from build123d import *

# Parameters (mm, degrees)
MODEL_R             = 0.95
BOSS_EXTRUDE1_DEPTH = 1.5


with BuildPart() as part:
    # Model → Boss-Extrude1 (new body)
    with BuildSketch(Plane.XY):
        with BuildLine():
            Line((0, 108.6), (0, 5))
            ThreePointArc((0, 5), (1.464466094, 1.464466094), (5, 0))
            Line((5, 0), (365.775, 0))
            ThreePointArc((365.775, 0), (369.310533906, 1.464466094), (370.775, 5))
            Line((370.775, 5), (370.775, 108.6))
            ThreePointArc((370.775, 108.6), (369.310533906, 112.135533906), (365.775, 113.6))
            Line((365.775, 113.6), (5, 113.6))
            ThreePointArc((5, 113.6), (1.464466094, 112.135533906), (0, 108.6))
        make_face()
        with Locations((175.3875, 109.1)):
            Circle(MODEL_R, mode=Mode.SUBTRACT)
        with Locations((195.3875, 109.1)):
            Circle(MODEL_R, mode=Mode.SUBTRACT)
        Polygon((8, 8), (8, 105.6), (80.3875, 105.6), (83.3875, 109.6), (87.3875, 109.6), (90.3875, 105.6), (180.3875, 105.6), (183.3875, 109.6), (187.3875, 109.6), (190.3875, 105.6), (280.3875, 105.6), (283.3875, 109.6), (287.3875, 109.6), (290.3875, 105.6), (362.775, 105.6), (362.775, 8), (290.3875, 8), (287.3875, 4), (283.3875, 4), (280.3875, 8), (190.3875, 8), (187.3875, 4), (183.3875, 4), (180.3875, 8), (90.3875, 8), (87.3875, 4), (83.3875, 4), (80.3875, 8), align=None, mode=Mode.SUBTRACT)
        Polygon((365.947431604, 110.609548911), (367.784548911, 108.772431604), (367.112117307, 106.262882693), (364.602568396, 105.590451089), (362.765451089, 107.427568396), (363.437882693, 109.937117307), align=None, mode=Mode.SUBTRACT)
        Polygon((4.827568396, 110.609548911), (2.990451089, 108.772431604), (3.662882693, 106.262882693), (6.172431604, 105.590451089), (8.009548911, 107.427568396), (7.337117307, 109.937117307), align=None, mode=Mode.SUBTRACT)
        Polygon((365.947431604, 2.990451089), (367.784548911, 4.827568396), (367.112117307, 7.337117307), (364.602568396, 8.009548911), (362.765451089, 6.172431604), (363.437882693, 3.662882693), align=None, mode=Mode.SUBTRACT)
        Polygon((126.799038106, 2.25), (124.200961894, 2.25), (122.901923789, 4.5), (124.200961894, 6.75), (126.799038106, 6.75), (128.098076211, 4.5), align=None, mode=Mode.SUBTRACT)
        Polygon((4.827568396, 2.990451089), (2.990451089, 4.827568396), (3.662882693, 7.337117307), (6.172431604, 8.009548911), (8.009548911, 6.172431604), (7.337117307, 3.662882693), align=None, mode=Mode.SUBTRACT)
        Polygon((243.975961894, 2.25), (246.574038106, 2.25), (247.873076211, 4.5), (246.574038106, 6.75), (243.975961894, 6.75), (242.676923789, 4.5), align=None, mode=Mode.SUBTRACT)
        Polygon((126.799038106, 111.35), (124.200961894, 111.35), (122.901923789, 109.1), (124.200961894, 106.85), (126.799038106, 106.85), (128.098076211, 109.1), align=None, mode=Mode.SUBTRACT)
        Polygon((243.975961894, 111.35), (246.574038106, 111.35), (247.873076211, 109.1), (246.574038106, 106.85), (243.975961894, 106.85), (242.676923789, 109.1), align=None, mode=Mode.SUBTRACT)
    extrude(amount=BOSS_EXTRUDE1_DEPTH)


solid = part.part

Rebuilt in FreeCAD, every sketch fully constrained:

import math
import FreeCAD as App
import Part
import Sketcher

V = App.Vector
Q = App.Units.Quantity

doc = App.newDocument("Part")
params = doc.addObject("Spreadsheet::Sheet", "Params")
for row, (alias, value) in enumerate([
    ("sketch1_radius", "5 mm"),
    ("sketch1_diameter", "1.9 mm"),
    ("sketch1_width", "4 mm"),
    ("sketch1_width2", "90 mm"),
    ("sketch1_length", "5 mm"),
    ("pad1_length", "1.5 mm"),
], start=1):
    params.set(f"A{row}", alias)
    params.set(f"B{row}", "=" + value)
    params.setAlias(f"B{row}", alias)

body = doc.addObject("PartDesign::Body", "Body")

# Sketch on XY plane
sketch1 = doc.addObject("Sketcher::SketchObject", "Sketch")
body.addObject(sketch1)
sketch1.AttachmentSupport = (doc.XY_Plane, [""])
sketch1.MapMode = "FlatFace"
sketch1.addGeometry(Part.LineSegment(V(0, 108.6, 0), V(0, 5, 0)), False)
sketch1.addGeometry(Part.ArcOfCircle(Part.Circle(V(5, 5, 0), V(0, 0, 1), 5), math.radians(180), math.radians(270)), False)
sketch1.addGeometry(Part.LineSegment(V(5, 0, 0), V(365.8, 0, 0)), False)
sketch1.addGeometry(Part.ArcOfCircle(Part.Circle(V(365.8, 5, 0), V(0, 0, 1), 5), math.radians(-90), math.radians(0)), False)
sketch1.addGeometry(Part.LineSegment(V(370.8, 5, 0), V(370.8, 108.6, 0)), False)
sketch1.addGeometry(Part.ArcOfCircle(Part.Circle(V(365.8, 108.6, 0), V(0, 0, 1), 5), math.radians(0), math.radians(90)), False)
sketch1.addGeometry(Part.LineSegment(V(365.8, 113.6, 0), V(5, 113.6, 0)), False)
sketch1.addGeometry(Part.ArcOfCircle(Part.Circle(V(5, 108.6, 0), V(0, 0, 1), 5), math.radians(90), math.radians(180)), False)
sketch1.addGeometry(Part.LineSegment(V(7.3, 3.7, 0), V(4.8, 3, 0)), False)
sketch1.addGeometry(Part.LineSegment(V(4.8, 3, 0), V(3, 4.8, 0)), False)
sketch1.addGeometry(Part.LineSegment(V(3, 4.8, 0), V(3.7, 7.3, 0)), False)
sketch1.addGeometry(Part.LineSegment(V(3.7, 7.3, 0), V(6.2, 8, 0)), False)
sketch1.addGeometry(Part.LineSegment(V(6.2, 8, 0), V(8, 6.2, 0)), False)
sketch1.addGeometry(Part.LineSegment(V(8, 6.2, 0), V(7.3, 3.7, 0)), False)
sketch1.addGeometry(Part.LineSegment(V(128.1, 4.5, 0), V(126.8, 2.2, 0)), False)
sketch1.addGeometry(Part.LineSegment(V(126.8, 2.2, 0), V(124.2, 2.2, 0)), False)
sketch1.addGeometry(Part.LineSegment(V(124.2, 2.2, 0), V(122.9, 4.5, 0)), False)
sketch1.addGeometry(Part.LineSegment(V(122.9, 4.5, 0), V(124.2, 6.8, 0)), False)
sketch1.addGeometry(Part.LineSegment(V(124.2, 6.8, 0), V(126.8, 6.8, 0)), False)
sketch1.addGeometry(Part.LineSegment(V(126.8, 6.8, 0), V(128.1, 4.5, 0)), False)
sketch1.addGeometry(Part.LineSegment(V(80.4, 8, 0), V(8, 8, 0)), False)
sketch1.addGeometry(Part.LineSegment(V(8, 8, 0), V(8, 105.6, 0)), False)
sketch1.addGeometry(Part.LineSegment(V(8, 105.6, 0), V(80.4, 105.6, 0)), False)
sketch1.addGeometry(Part.LineSegment(V(80.4, 105.6, 0), V(83.4, 109.6, 0)), False)
sketch1.addGeometry(Part.LineSegment(V(83.4, 109.6, 0), V(87.4, 109.6, 0)), False)
sketch1.addGeometry(Part.LineSegment(V(87.4, 109.6, 0), V(90.4, 105.6, 0)), False)
sketch1.addGeometry(Part.LineSegment(V(90.4, 105.6, 0), V(180.4, 105.6, 0)), False)
sketch1.addGeometry(Part.LineSegment(V(180.4, 105.6, 0), V(183.4, 109.6, 0)), False)
sketch1.addGeometry(Part.LineSegment(V(183.4, 109.6, 0), V(187.4, 109.6, 0)), False)
sketch1.addGeometry(Part.LineSegment(V(187.4, 109.6, 0), V(190.4, 105.6, 0)), False)
sketch1.addGeometry(Part.LineSegment(V(190.4, 105.6, 0), V(280.4, 105.6, 0)), False)
sketch1.addGeometry(Part.LineSegment(V(280.4, 105.6, 0), V(283.4, 109.6, 0)), False)
sketch1.addGeometry(Part.LineSegment(V(283.4, 109.6, 0), V(287.4, 109.6, 0)), False)
sketch1.addGeometry(Part.LineSegment(V(287.4, 109.6, 0), V(290.4, 105.6, 0)), False)
sketch1.addGeometry(Part.LineSegment(V(290.4, 105.6, 0), V(362.8, 105.6, 0)), False)
sketch1.addGeometry(Part.LineSegment(V(362.8, 105.6, 0), V(362.8, 8, 0)), False)
sketch1.addGeometry(Part.LineSegment(V(362.8, 8, 0), V(290.4, 8, 0)), False)
sketch1.addGeometry(Part.LineSegment(V(290.4, 8, 0), V(287.4, 4, 0)), False)
sketch1.addGeometry(Part.LineSegment(V(287.4, 4, 0), V(283.4, 4, 0)), False)
sketch1.addGeometry(Part.LineSegment(V(283.4, 4, 0), V(280.4, 8, 0)), False)
sketch1.addGeometry(Part.LineSegment(V(280.4, 8, 0), V(190.4, 8, 0)), False)
sketch1.addGeometry(Part.LineSegment(V(190.4, 8, 0), V(187.4, 4, 0)), False)
sketch1.addGeometry(Part.LineSegment(V(187.4, 4, 0), V(183.4, 4, 0)), False)
sketch1.addGeometry(Part.LineSegment(V(183.4, 4, 0), V(180.4, 8, 0)), False)
sketch1.addGeometry(Part.LineSegment(V(180.4, 8, 0), V(90.4, 8, 0)), False)
sketch1.addGeometry(Part.LineSegment(V(90.4, 8, 0), V(87.4, 4, 0)), False)
sketch1.addGeometry(Part.LineSegment(V(87.4, 4, 0), V(83.4, 4, 0)), False)
sketch1.addGeometry(Part.LineSegment(V(83.4, 4, 0), V(80.4, 8, 0)), False)
sketch1.addGeometry(Part.LineSegment(V(246.6, 2.2, 0), V(244, 2.2, 0)), False)
sketch1.addGeometry(Part.LineSegment(V(244, 2.2, 0), V(242.7, 4.5, 0)), False)
sketch1.addGeometry(Part.LineSegment(V(242.7, 4.5, 0), V(244, 6.8, 0)), False)
sketch1.addGeometry(Part.LineSegment(V(244, 6.8, 0), V(246.6, 6.8, 0)), False)
sketch1.addGeometry(Part.LineSegment(V(246.6, 6.8, 0), V(247.9, 4.5, 0)), False)
sketch1.addGeometry(Part.LineSegment(V(247.9, 4.5, 0), V(246.6, 2.2, 0)), False)
sketch1.addGeometry(Part.LineSegment(V(367.8, 4.8, 0), V(365.9, 3, 0)), False)
sketch1.addGeometry(Part.LineSegment(V(365.9, 3, 0), V(363.4, 3.7, 0)), False)
sketch1.addGeometry(Part.LineSegment(V(363.4, 3.7, 0), V(362.8, 6.2, 0)), False)
sketch1.addGeometry(Part.LineSegment(V(362.8, 6.2, 0), V(364.6, 8, 0)), False)
sketch1.addGeometry(Part.LineSegment(V(364.6, 8, 0), V(367.1, 7.3, 0)), False)
sketch1.addGeometry(Part.LineSegment(V(367.1, 7.3, 0), V(367.8, 4.8, 0)), False)
sketch1.addGeometry(Part.LineSegment(V(3, 108.8, 0), V(4.8, 110.6, 0)), False)
sketch1.addGeometry(Part.LineSegment(V(4.8, 110.6, 0), V(7.3, 109.9, 0)), False)
sketch1.addGeometry(Part.LineSegment(V(7.3, 109.9, 0), V(8, 107.4, 0)), False)
sketch1.addGeometry(Part.LineSegment(V(8, 107.4, 0), V(6.2, 105.6, 0)), False)
sketch1.addGeometry(Part.LineSegment(V(6.2, 105.6, 0), V(3.7, 106.3, 0)), False)
sketch1.addGeometry(Part.LineSegment(V(3.7, 106.3, 0), V(3, 108.8, 0)), False)
sketch1.addGeometry(Part.LineSegment(V(124.2, 111.3, 0), V(126.8, 111.3, 0)), False)
sketch1.addGeometry(Part.LineSegment(V(126.8, 111.3, 0), V(128.1, 109.1, 0)), False)
sketch1.addGeometry(Part.LineSegment(V(128.1, 109.1, 0), V(126.8, 106.8, 0)), False)
sketch1.addGeometry(Part.LineSegment(V(126.8, 106.8, 0), V(124.2, 106.8, 0)), False)
sketch1.addGeometry(Part.LineSegment(V(124.2, 106.8, 0), V(122.9, 109.1, 0)), False)
sketch1.addGeometry(Part.LineSegment(V(122.9, 109.1, 0), V(124.2, 111.3, 0)), False)
sketch1.addGeometry(Part.Circle(V(175.4, 109.1, 0), V(0, 0, 1), 0.9), False)
sketch1.addGeometry(Part.Circle(V(195.4, 109.1, 0), V(0, 0, 1), 0.9), False)
sketch1.addGeometry(Part.LineSegment(V(242.7, 109.1, 0), V(244, 111.3, 0)), False)
sketch1.addGeometry(Part.LineSegment(V(244, 111.3, 0), V(246.6, 111.3, 0)), False)
sketch1.addGeometry(Part.LineSegment(V(246.6, 111.3, 0), V(247.9, 109.1, 0)), False)
sketch1.addGeometry(Part.LineSegment(V(247.9, 109.1, 0), V(246.6, 106.8, 0)), False)
sketch1.addGeometry(Part.LineSegment(V(246.6, 106.8, 0), V(244, 106.8, 0)), False)
sketch1.addGeometry(Part.LineSegment(V(244, 106.8, 0), V(242.7, 109.1, 0)), False)
sketch1.addGeometry(Part.LineSegment(V(363.4, 109.9, 0), V(365.9, 110.6, 0)), False)
sketch1.addGeometry(Part.LineSegment(V(365.9, 110.6, 0), V(367.8, 108.8, 0)), False)
sketch1.addGeometry(Part.LineSegment(V(367.8, 108.8, 0), V(367.1, 106.3, 0)), False)
sketch1.addGeometry(Part.LineSegment(V(367.1, 106.3, 0), V(364.6, 105.6, 0)), False)
sketch1.addGeometry(Part.LineSegment(V(364.6, 105.6, 0), V(362.8, 107.4, 0)), False)
sketch1.addGeometry(Part.LineSegment(V(362.8, 107.4, 0), V(363.4, 109.9, 0)), False)
sketch1.addConstraint(Sketcher.Constraint("Tangent", 0, 2, 1, 1))
sketch1.addConstraint(Sketcher.Constraint("Tangent", 1, 2, 2, 1))
sketch1.addConstraint(Sketcher.Constraint("Tangent", 2, 2, 3, 1))
sketch1.addConstraint(Sketcher.Constraint("Tangent", 3, 2, 4, 1))
sketch1.addConstraint(Sketcher.Constraint("Tangent", 4, 2, 5, 1))
sketch1.addConstraint(Sketcher.Constraint("Tangent", 5, 2, 6, 1))
sketch1.addConstraint(Sketcher.Constraint("Tangent", 6, 2, 7, 1))
sketch1.addConstraint(Sketcher.Constraint("Tangent", 7, 2, 0, 1))
sketch1.addConstraint(Sketcher.Constraint("Coincident", 8, 2, 9, 1))
sketch1.addConstraint(Sketcher.Constraint("Coincident", 9, 2, 10, 1))
sketch1.addConstraint(Sketcher.Constraint("Coincident", 10, 2, 11, 1))
sketch1.addConstraint(Sketcher.Constraint("Coincident", 11, 2, 12, 1))
sketch1.addConstraint(Sketcher.Constraint("Coincident", 12, 2, 13, 1))
sketch1.addConstraint(Sketcher.Constraint("Coincident", 13, 2, 8, 1))
sketch1.addConstraint(Sketcher.Constraint("Coincident", 14, 2, 15, 1))
sketch1.addConstraint(Sketcher.Constraint("Coincident", 15, 2, 16, 1))
sketch1.addConstraint(Sketcher.Constraint("Coincident", 16, 2, 17, 1))
sketch1.addConstraint(Sketcher.Constraint("Coincident", 17, 2, 18, 1))
sketch1.addConstraint(Sketcher.Constraint("Coincident", 18, 2, 19, 1))
sketch1.addConstraint(Sketcher.Constraint("Coincident", 19, 2, 14, 1))
sketch1.addConstraint(Sketcher.Constraint("Coincident", 20, 2, 21, 1))
sketch1.addConstraint(Sketcher.Constraint("Coincident", 21, 2, 22, 1))
sketch1.addConstraint(Sketcher.Constraint("Coincident", 22, 2, 23, 1))
sketch1.addConstraint(Sketcher.Constraint("Coincident", 23, 2, 24, 1))
sketch1.addConstraint(Sketcher.Constraint("Coincident", 24, 2, 25, 1))
sketch1.addConstraint(Sketcher.Constraint("Coincident", 25, 2, 26, 1))
sketch1.addConstraint(Sketcher.Constraint("Coincident", 26, 2, 27, 1))
sketch1.addConstraint(Sketcher.Constraint("Coincident", 27, 2, 28, 1))
sketch1.addConstraint(Sketcher.Constraint("Coincident", 28, 2, 29, 1))
sketch1.addConstraint(Sketcher.Constraint("Coincident", 29, 2, 30, 1))
sketch1.addConstraint(Sketcher.Constraint("Coincident", 30, 2, 31, 1))
sketch1.addConstraint(Sketcher.Constraint("Coincident", 31, 2, 32, 1))
sketch1.addConstraint(Sketcher.Constraint("Coincident", 32, 2, 33, 1))
sketch1.addConstraint(Sketcher.Constraint("Coincident", 33, 2, 34, 1))
sketch1.addConstraint(Sketcher.Constraint("Coincident", 34, 2, 35, 1))
sketch1.addConstraint(Sketcher.Constraint("Coincident", 35, 2, 36, 1))
sketch1.addConstraint(Sketcher.Constraint("Coincident", 36, 2, 37, 1))
sketch1.addConstraint(Sketcher.Constraint("Coincident", 37, 2, 38, 1))
sketch1.addConstraint(Sketcher.Constraint("Coincident", 38, 2, 39, 1))
sketch1.addConstraint(Sketcher.Constraint("Coincident", 39, 2, 40, 1))
sketch1.addConstraint(Sketcher.Constraint("Coincident", 40, 2, 41, 1))
sketch1.addConstraint(Sketcher.Constraint("Coincident", 41, 2, 42, 1))
sketch1.addConstraint(Sketcher.Constraint("Coincident", 42, 2, 43, 1))
sketch1.addConstraint(Sketcher.Constraint("Coincident", 43, 2, 44, 1))
sketch1.addConstraint(Sketcher.Constraint("Coincident", 44, 2, 45, 1))
sketch1.addConstraint(Sketcher.Constraint("Coincident", 45, 2, 46, 1))
sketch1.addConstraint(Sketcher.Constraint("Coincident", 46, 2, 47, 1))
sketch1.addConstraint(Sketcher.Constraint("Coincident", 47, 2, 20, 1))
sketch1.addConstraint(Sketcher.Constraint("Coincident", 48, 2, 49, 1))
sketch1.addConstraint(Sketcher.Constraint("Coincident", 49, 2, 50, 1))
sketch1.addConstraint(Sketcher.Constraint("Coincident", 50, 2, 51, 1))
sketch1.addConstraint(Sketcher.Constraint("Coincident", 51, 2, 52, 1))
sketch1.addConstraint(Sketcher.Constraint("Coincident", 52, 2, 53, 1))
sketch1.addConstraint(Sketcher.Constraint("Coincident", 53, 2, 48, 1))
sketch1.addConstraint(Sketcher.Constraint("Coincident", 54, 2, 55, 1))
sketch1.addConstraint(Sketcher.Constraint("Coincident", 55, 2, 56, 1))
sketch1.addConstraint(Sketcher.Constraint("Coincident", 56, 2, 57, 1))
sketch1.addConstraint(Sketcher.Constraint("Coincident", 57, 2, 58, 1))
sketch1.addConstraint(Sketcher.Constraint("Coincident", 58, 2, 59, 1))
sketch1.addConstraint(Sketcher.Constraint("Coincident", 59, 2, 54, 1))
sketch1.addConstraint(Sketcher.Constraint("Coincident", 60, 2, 61, 1))
sketch1.addConstraint(Sketcher.Constraint("Coincident", 61, 2, 62, 1))
sketch1.addConstraint(Sketcher.Constraint("Coincident", 62, 2, 63, 1))
sketch1.addConstraint(Sketcher.Constraint("Coincident", 63, 2, 64, 1))
sketch1.addConstraint(Sketcher.Constraint("Coincident", 64, 2, 65, 1))
sketch1.addConstraint(Sketcher.Constraint("Coincident", 65, 2, 60, 1))
sketch1.addConstraint(Sketcher.Constraint("Coincident", 66, 2, 67, 1))
sketch1.addConstraint(Sketcher.Constraint("Coincident", 67, 2, 68, 1))
sketch1.addConstraint(Sketcher.Constraint("Coincident", 68, 2, 69, 1))
sketch1.addConstraint(Sketcher.Constraint("Coincident", 69, 2, 70, 1))
sketch1.addConstraint(Sketcher.Constraint("Coincident", 70, 2, 71, 1))
sketch1.addConstraint(Sketcher.Constraint("Coincident", 71, 2, 66, 1))
sketch1.addConstraint(Sketcher.Constraint("Coincident", 74, 2, 75, 1))
sketch1.addConstraint(Sketcher.Constraint("Coincident", 75, 2, 76, 1))
sketch1.addConstraint(Sketcher.Constraint("Coincident", 76, 2, 77, 1))
sketch1.addConstraint(Sketcher.Constraint("Coincident", 77, 2, 78, 1))
sketch1.addConstraint(Sketcher.Constraint("Coincident", 78, 2, 79, 1))
sketch1.addConstraint(Sketcher.Constraint("Coincident", 79, 2, 74, 1))
sketch1.addConstraint(Sketcher.Constraint("Coincident", 80, 2, 81, 1))
sketch1.addConstraint(Sketcher.Constraint("Coincident", 81, 2, 82, 1))
sketch1.addConstraint(Sketcher.Constraint("Coincident", 82, 2, 83, 1))
sketch1.addConstraint(Sketcher.Constraint("Coincident", 83, 2, 84, 1))
sketch1.addConstraint(Sketcher.Constraint("Coincident", 84, 2, 85, 1))
sketch1.addConstraint(Sketcher.Constraint("Coincident", 85, 2, 80, 1))
sketch1.addConstraint(Sketcher.Constraint("Vertical", 0))
sketch1.addConstraint(Sketcher.Constraint("Horizontal", 2))
sketch1.addConstraint(Sketcher.Constraint("Vertical", 4))
sketch1.addConstraint(Sketcher.Constraint("Horizontal", 6))
sketch1.addConstraint(Sketcher.Constraint("Horizontal", 15))
sketch1.addConstraint(Sketcher.Constraint("Horizontal", 18))
sketch1.addConstraint(Sketcher.Constraint("Horizontal", 20))
sketch1.addConstraint(Sketcher.Constraint("Vertical", 21))
sketch1.addConstraint(Sketcher.Constraint("Horizontal", 22))
sketch1.addConstraint(Sketcher.Constraint("Horizontal", 24))
sketch1.addConstraint(Sketcher.Constraint("Horizontal", 26))
sketch1.addConstraint(Sketcher.Constraint("Horizontal", 28))
sketch1.addConstraint(Sketcher.Constraint("Horizontal", 30))
sketch1.addConstraint(Sketcher.Constraint("Horizontal", 32))
sketch1.addConstraint(Sketcher.Constraint("Horizontal", 34))
sketch1.addConstraint(Sketcher.Constraint("Vertical", 35))
sketch1.addConstraint(Sketcher.Constraint("Horizontal", 36))
sketch1.addConstraint(Sketcher.Constraint("Horizontal", 38))
sketch1.addConstraint(Sketcher.Constraint("Horizontal", 40))
sketch1.addConstraint(Sketcher.Constraint("Horizontal", 42))
sketch1.addConstraint(Sketcher.Constraint("Horizontal", 44))
sketch1.addConstraint(Sketcher.Constraint("Horizontal", 46))
sketch1.addConstraint(Sketcher.Constraint("Horizontal", 48))
sketch1.addConstraint(Sketcher.Constraint("Horizontal", 51))
sketch1.addConstraint(Sketcher.Constraint("Horizontal", 66))
sketch1.addConstraint(Sketcher.Constraint("Horizontal", 69))
sketch1.addConstraint(Sketcher.Constraint("Horizontal", 75))
sketch1.addConstraint(Sketcher.Constraint("Horizontal", 78))
sketch1.addConstraint(Sketcher.Constraint("Equal", 1, 3))
sketch1.addConstraint(Sketcher.Constraint("Equal", 3, 5))
sketch1.addConstraint(Sketcher.Constraint("Equal", 5, 7))
sketch1.addConstraint(Sketcher.Constraint("Equal", 72, 73))
sketch1.addConstraint(Sketcher.Constraint("PointOnObject", 0, 2, -2))
sketch1.addConstraint(Sketcher.Constraint("PointOnObject", 1, 2, -1))
sketch1.addConstraint(Sketcher.Constraint("Parallel", 8, 11))
sketch1.addConstraint(Sketcher.Constraint("Parallel", 9, 12))
sketch1.addConstraint(Sketcher.Constraint("Parallel", 10, 13))
sketch1.addConstraint(Sketcher.Constraint("Parallel", 14, 17))
sketch1.addConstraint(Sketcher.Constraint("Parallel", 16, 19))
sketch1.addConstraint(Sketcher.Constraint("Parallel", 23, 27))
sketch1.addConstraint(Sketcher.Constraint("Parallel", 25, 29))
sketch1.addConstraint(Sketcher.Constraint("Parallel", 27, 31))
sketch1.addConstraint(Sketcher.Constraint("Parallel", 29, 33))
sketch1.addConstraint(Sketcher.Constraint("Parallel", 31, 37))
sketch1.addConstraint(Sketcher.Constraint("Parallel", 33, 39))
sketch1.addConstraint(Sketcher.Constraint("Parallel", 37, 41))
sketch1.addConstraint(Sketcher.Constraint("Parallel", 39, 43))
sketch1.addConstraint(Sketcher.Constraint("Parallel", 41, 45))
sketch1.addConstraint(Sketcher.Constraint("Parallel", 43, 47))
sketch1.addConstraint(Sketcher.Constraint("Parallel", 19, 49))
sketch1.addConstraint(Sketcher.Constraint("Parallel", 17, 50))
sketch1.addConstraint(Sketcher.Constraint("Parallel", 49, 52))
sketch1.addConstraint(Sketcher.Constraint("Parallel", 50, 53))
sketch1.addConstraint(Sketcher.Constraint("Perpendicular", 12, 54))
sketch1.addConstraint(Sketcher.Constraint("Perpendicular", 13, 55))
sketch1.addConstraint(Sketcher.Constraint("Perpendicular", 11, 56))
sketch1.addConstraint(Sketcher.Constraint("Parallel", 54, 57))
sketch1.addConstraint(Sketcher.Constraint("Parallel", 55, 58))
sketch1.addConstraint(Sketcher.Constraint("Parallel", 56, 59))
sketch1.addConstraint(Sketcher.Constraint("Parallel", 57, 60))
sketch1.addConstraint(Sketcher.Constraint("Parallel", 58, 61))
sketch1.addConstraint(Sketcher.Constraint("Parallel", 59, 62))
sketch1.addConstraint(Sketcher.Constraint("Parallel", 60, 63))
sketch1.addConstraint(Sketcher.Constraint("Parallel", 61, 64))
sketch1.addConstraint(Sketcher.Constraint("Parallel", 62, 65))
sketch1.addConstraint(Sketcher.Constraint("Parallel", 52, 67))
sketch1.addConstraint(Sketcher.Constraint("Parallel", 53, 68))
sketch1.addConstraint(Sketcher.Constraint("Parallel", 67, 70))
sketch1.addConstraint(Sketcher.Constraint("Parallel", 68, 71))
sketch1.addConstraint(Sketcher.Constraint("Parallel", 71, 74))
sketch1.addConstraint(Sketcher.Constraint("Parallel", 70, 76))
sketch1.addConstraint(Sketcher.Constraint("Parallel", 74, 77))
sketch1.addConstraint(Sketcher.Constraint("Parallel", 76, 79))
sketch1.addConstraint(Sketcher.Constraint("Perpendicular", 65, 80))
sketch1.addConstraint(Sketcher.Constraint("Perpendicular", 63, 81))
sketch1.addConstraint(Sketcher.Constraint("Perpendicular", 64, 82))
sketch1.addConstraint(Sketcher.Constraint("Parallel", 80, 83))
sketch1.addConstraint(Sketcher.Constraint("Parallel", 81, 84))
sketch1.addConstraint(Sketcher.Constraint("Parallel", 82, 85))
sketch1.addConstraint(Sketcher.Constraint("Horizontal", 72, 3, 73, 3))
sketch1.addConstraint(Sketcher.Constraint("Horizontal", 16, 2, 19, 2))
sketch1.addConstraint(Sketcher.Constraint("Horizontal", 22, 2, 25, 2))
sketch1.addConstraint(Sketcher.Constraint("Horizontal", 24, 2, 27, 2))
sketch1.addConstraint(Sketcher.Constraint("Horizontal", 26, 2, 29, 2))
sketch1.addConstraint(Sketcher.Constraint("Horizontal", 28, 2, 31, 2))
sketch1.addConstraint(Sketcher.Constraint("Horizontal", 30, 2, 33, 2))
sketch1.addConstraint(Sketcher.Constraint("Horizontal", 20, 2, 35, 2))
sketch1.addConstraint(Sketcher.Constraint("Horizontal", 36, 2, 39, 2))
sketch1.addConstraint(Sketcher.Constraint("Horizontal", 38, 2, 41, 2))
sketch1.addConstraint(Sketcher.Constraint("Horizontal", 40, 2, 43, 2))
sketch1.addConstraint(Sketcher.Constraint("Horizontal", 42, 2, 45, 2))
sketch1.addConstraint(Sketcher.Constraint("Horizontal", 15, 2, 48, 2))
sketch1.addConstraint(Sketcher.Constraint("Horizontal", 19, 2, 49, 2))
sketch1.addConstraint(Sketcher.Constraint("Horizontal", 18, 2, 50, 2))
sketch1.addConstraint(Sketcher.Constraint("Horizontal", 49, 2, 52, 2))
sketch1.addConstraint(Sketcher.Constraint("Horizontal", 8, 2, 54, 2))
sketch1.addConstraint(Sketcher.Constraint("Horizontal", 13, 2, 55, 2))
sketch1.addConstraint(Sketcher.Constraint("Horizontal", 12, 2, 56, 2))
sketch1.addConstraint(Sketcher.Constraint("Horizontal", 11, 2, 57, 2))
sketch1.addConstraint(Sketcher.Constraint("Horizontal", 10, 2, 58, 2))
sketch1.addConstraint(Sketcher.Constraint("Horizontal", 73, 3, 67, 2))
sketch1.addConstraint(Sketcher.Constraint("Horizontal", 67, 2, 70, 2))
sketch1.addConstraint(Sketcher.Constraint("Horizontal", 71, 2, 74, 2))
sketch1.addConstraint(Sketcher.Constraint("Horizontal", 70, 2, 76, 2))
sketch1.addConstraint(Sketcher.Constraint("Horizontal", 69, 2, 77, 2))
sketch1.addConstraint(Sketcher.Constraint("Horizontal", 76, 2, 79, 2))
sketch1.addConstraint(Sketcher.Constraint("Horizontal", 60, 2, 80, 2))
sketch1.addConstraint(Sketcher.Constraint("Horizontal", 65, 2, 81, 2))
sketch1.addConstraint(Sketcher.Constraint("Horizontal", 64, 2, 82, 2))
sketch1.addConstraint(Sketcher.Constraint("Horizontal", 63, 2, 83, 2))
sketch1.addConstraint(Sketcher.Constraint("Horizontal", 62, 2, 84, 2))
sketch1.addConstraint(Sketcher.Constraint("Vertical", 15, 2, 17, 2))
sketch1.addConstraint(Sketcher.Constraint("Vertical", 14, 2, 18, 2))
sketch1.addConstraint(Sketcher.Constraint("Vertical", 33, 2, 36, 2))
sketch1.addConstraint(Sketcher.Constraint("Vertical", 32, 2, 37, 2))
sketch1.addConstraint(Sketcher.Constraint("Vertical", 31, 2, 38, 2))
sketch1.addConstraint(Sketcher.Constraint("Vertical", 30, 2, 39, 2))
sketch1.addConstraint(Sketcher.Constraint("Vertical", 29, 2, 40, 2))
sketch1.addConstraint(Sketcher.Constraint("Vertical", 27, 2, 42, 2))
sketch1.addConstraint(Sketcher.Constraint("Vertical", 25, 2, 44, 2))
sketch1.addConstraint(Sketcher.Constraint("Vertical", 23, 2, 46, 2))
sketch1.addConstraint(Sketcher.Constraint("Vertical", 8, 2, 60, 2))
sketch1.addConstraint(Sketcher.Constraint("Vertical", 13, 2, 61, 2))
sketch1.addConstraint(Sketcher.Constraint("Vertical", 12, 2, 62, 2))
sketch1.addConstraint(Sketcher.Constraint("Vertical", 11, 2, 63, 2))
sketch1.addConstraint(Sketcher.Constraint("Vertical", 10, 2, 64, 2))
sketch1.addConstraint(Sketcher.Constraint("Vertical", 18, 2, 66, 2))
sketch1.addConstraint(Sketcher.Constraint("Vertical", 19, 2, 67, 2))
sketch1.addConstraint(Sketcher.Constraint("Vertical", 66, 2, 68, 2))
sketch1.addConstraint(Sketcher.Constraint("Vertical", 17, 2, 69, 2))
sketch1.addConstraint(Sketcher.Constraint("Vertical", 50, 2, 74, 2))
sketch1.addConstraint(Sketcher.Constraint("Vertical", 53, 2, 75, 2))
sketch1.addConstraint(Sketcher.Constraint("Vertical", 54, 2, 80, 2))
sketch1.addConstraint(Sketcher.Constraint("Vertical", 59, 2, 81, 2))
sketch1.addConstraint(Sketcher.Constraint("Vertical", 58, 2, 82, 2))
sketch1.addConstraint(Sketcher.Constraint("Equal", 24, 28))
sketch1.addConstraint(Sketcher.Constraint("Equal", 26, 30))
sketch1.addConstraint(Sketcher.Constraint("Equal", 28, 32))
sketch1.addConstraint(Sketcher.Constraint("Equal", 22, 34))
sketch1.addConstraint(Sketcher.Constraint("Equal", 18, 48))
sketch1.addConstraint(Sketcher.Constraint("Equal", 8, 9))
sketch1.addConstraint(Sketcher.Constraint("Equal", 9, 10))
sketch1.addConstraint(Sketcher.Constraint("Equal", 10, 11))
sketch1.addConstraint(Sketcher.Constraint("Equal", 13, 14))
sketch1.addConstraint(Sketcher.Constraint("Radius", 1, Q("5 mm")))
sketch1.addConstraint(Sketcher.Constraint("Diameter", 72, Q("1.9 mm")))
sketch1.addConstraint(Sketcher.Constraint("DistanceX", 24, 1, 24, 2, Q("4 mm")))
sketch1.addConstraint(Sketcher.Constraint("DistanceX", 26, 1, 26, 2, Q("90 mm")))
sketch1.addConstraint(Sketcher.Constraint("Angle", 8, Q("-165 deg")))
sketch1.addConstraint(Sketcher.Constraint("Angle", 14, Q("-120 deg")))
sketch1.addConstraint(Sketcher.Constraint("Distance", 23, Q("5 mm")))
sketch1.addConstraint(Sketcher.Constraint("DistanceY", 0, 2, 0, 1, Q("103.6 mm")))
sketch1.addConstraint(Sketcher.Constraint("DistanceY", 21, 1, 21, 2, Q("97.6 mm")))
sketch1.addConstraint(Sketcher.Constraint("DistanceX", -1, 1, 20, 2, Q("8 mm")))
sketch1.addConstraint(Sketcher.Constraint("DistanceY", -1, 1, 20, 2, Q("8 mm")))
sketch1.addConstraint(Sketcher.Constraint("DistanceY", -1, 1, 37, 2, Q("4 mm")))
sketch1.addConstraint(Sketcher.Constraint("DistanceY", -1, 1, 72, 3, Q("109.1 mm")))
sketch1.addConstraint(Sketcher.Constraint("DistanceY", -1, 1, 16, 2, Q("4.5 mm")))
sketch1.addConstraint(Sketcher.Constraint("DistanceX", 2, 1, 2, 2, Q("360.775 mm")))
sketch1.addConstraint(Sketcher.Constraint("DistanceY", -1, 1, 14, 2, Q("2.25 mm")))
sketch1.addConstraint(Sketcher.Constraint("DistanceX", 20, 2, 20, 1, Q("72.3875 mm")))
sketch1.addConstraint(Sketcher.Constraint("DistanceX", -1, 1, 72, 3, Q("175.3875 mm")))
sketch1.addConstraint(Sketcher.Constraint("DistanceX", -1, 1, 73, 3, Q("195.3875 mm")))
sketch1.addConstraint(Sketcher.Constraint("DistanceX", 15, 2, 15, 1, Q("2.598076 mm")))
sketch1.addConstraint(Sketcher.Constraint("DistanceX", -1, 1, 8, 2, Q("4.827568 mm")))
sketch1.addConstraint(Sketcher.Constraint("DistanceY", -1, 1, 8, 2, Q("2.990451 mm")))
sketch1.addConstraint(Sketcher.Constraint("DistanceX", -1, 1, 14, 2, Q("126.799038 mm")))
sketch1.addConstraint(Sketcher.Constraint("DistanceX", -1, 1, 48, 2, Q("243.975962 mm")))
sketch1.addConstraint(Sketcher.Constraint("DistanceX", -1, 1, 54, 2, Q("365.947432 mm")))
sketch1.addConstraint(Sketcher.Constraint("DistanceY", -1, 1, 60, 2, Q("110.609549 mm")))
sketch1.setExpression("Constraints[228]", "Params.sketch1_radius")
sketch1.setExpression("Constraints[229]", "Params.sketch1_diameter")
sketch1.setExpression("Constraints[230]", "Params.sketch1_width")
sketch1.setExpression("Constraints[231]", "Params.sketch1_width2")
sketch1.setExpression("Constraints[234]", "Params.sketch1_length")
pad1 = doc.addObject("PartDesign::Pad", "Pad")
body.addObject(pad1)
pad1.Profile = sketch1
pad1.setExpression("Length", "Params.pad1_length")

doc.recompute()
